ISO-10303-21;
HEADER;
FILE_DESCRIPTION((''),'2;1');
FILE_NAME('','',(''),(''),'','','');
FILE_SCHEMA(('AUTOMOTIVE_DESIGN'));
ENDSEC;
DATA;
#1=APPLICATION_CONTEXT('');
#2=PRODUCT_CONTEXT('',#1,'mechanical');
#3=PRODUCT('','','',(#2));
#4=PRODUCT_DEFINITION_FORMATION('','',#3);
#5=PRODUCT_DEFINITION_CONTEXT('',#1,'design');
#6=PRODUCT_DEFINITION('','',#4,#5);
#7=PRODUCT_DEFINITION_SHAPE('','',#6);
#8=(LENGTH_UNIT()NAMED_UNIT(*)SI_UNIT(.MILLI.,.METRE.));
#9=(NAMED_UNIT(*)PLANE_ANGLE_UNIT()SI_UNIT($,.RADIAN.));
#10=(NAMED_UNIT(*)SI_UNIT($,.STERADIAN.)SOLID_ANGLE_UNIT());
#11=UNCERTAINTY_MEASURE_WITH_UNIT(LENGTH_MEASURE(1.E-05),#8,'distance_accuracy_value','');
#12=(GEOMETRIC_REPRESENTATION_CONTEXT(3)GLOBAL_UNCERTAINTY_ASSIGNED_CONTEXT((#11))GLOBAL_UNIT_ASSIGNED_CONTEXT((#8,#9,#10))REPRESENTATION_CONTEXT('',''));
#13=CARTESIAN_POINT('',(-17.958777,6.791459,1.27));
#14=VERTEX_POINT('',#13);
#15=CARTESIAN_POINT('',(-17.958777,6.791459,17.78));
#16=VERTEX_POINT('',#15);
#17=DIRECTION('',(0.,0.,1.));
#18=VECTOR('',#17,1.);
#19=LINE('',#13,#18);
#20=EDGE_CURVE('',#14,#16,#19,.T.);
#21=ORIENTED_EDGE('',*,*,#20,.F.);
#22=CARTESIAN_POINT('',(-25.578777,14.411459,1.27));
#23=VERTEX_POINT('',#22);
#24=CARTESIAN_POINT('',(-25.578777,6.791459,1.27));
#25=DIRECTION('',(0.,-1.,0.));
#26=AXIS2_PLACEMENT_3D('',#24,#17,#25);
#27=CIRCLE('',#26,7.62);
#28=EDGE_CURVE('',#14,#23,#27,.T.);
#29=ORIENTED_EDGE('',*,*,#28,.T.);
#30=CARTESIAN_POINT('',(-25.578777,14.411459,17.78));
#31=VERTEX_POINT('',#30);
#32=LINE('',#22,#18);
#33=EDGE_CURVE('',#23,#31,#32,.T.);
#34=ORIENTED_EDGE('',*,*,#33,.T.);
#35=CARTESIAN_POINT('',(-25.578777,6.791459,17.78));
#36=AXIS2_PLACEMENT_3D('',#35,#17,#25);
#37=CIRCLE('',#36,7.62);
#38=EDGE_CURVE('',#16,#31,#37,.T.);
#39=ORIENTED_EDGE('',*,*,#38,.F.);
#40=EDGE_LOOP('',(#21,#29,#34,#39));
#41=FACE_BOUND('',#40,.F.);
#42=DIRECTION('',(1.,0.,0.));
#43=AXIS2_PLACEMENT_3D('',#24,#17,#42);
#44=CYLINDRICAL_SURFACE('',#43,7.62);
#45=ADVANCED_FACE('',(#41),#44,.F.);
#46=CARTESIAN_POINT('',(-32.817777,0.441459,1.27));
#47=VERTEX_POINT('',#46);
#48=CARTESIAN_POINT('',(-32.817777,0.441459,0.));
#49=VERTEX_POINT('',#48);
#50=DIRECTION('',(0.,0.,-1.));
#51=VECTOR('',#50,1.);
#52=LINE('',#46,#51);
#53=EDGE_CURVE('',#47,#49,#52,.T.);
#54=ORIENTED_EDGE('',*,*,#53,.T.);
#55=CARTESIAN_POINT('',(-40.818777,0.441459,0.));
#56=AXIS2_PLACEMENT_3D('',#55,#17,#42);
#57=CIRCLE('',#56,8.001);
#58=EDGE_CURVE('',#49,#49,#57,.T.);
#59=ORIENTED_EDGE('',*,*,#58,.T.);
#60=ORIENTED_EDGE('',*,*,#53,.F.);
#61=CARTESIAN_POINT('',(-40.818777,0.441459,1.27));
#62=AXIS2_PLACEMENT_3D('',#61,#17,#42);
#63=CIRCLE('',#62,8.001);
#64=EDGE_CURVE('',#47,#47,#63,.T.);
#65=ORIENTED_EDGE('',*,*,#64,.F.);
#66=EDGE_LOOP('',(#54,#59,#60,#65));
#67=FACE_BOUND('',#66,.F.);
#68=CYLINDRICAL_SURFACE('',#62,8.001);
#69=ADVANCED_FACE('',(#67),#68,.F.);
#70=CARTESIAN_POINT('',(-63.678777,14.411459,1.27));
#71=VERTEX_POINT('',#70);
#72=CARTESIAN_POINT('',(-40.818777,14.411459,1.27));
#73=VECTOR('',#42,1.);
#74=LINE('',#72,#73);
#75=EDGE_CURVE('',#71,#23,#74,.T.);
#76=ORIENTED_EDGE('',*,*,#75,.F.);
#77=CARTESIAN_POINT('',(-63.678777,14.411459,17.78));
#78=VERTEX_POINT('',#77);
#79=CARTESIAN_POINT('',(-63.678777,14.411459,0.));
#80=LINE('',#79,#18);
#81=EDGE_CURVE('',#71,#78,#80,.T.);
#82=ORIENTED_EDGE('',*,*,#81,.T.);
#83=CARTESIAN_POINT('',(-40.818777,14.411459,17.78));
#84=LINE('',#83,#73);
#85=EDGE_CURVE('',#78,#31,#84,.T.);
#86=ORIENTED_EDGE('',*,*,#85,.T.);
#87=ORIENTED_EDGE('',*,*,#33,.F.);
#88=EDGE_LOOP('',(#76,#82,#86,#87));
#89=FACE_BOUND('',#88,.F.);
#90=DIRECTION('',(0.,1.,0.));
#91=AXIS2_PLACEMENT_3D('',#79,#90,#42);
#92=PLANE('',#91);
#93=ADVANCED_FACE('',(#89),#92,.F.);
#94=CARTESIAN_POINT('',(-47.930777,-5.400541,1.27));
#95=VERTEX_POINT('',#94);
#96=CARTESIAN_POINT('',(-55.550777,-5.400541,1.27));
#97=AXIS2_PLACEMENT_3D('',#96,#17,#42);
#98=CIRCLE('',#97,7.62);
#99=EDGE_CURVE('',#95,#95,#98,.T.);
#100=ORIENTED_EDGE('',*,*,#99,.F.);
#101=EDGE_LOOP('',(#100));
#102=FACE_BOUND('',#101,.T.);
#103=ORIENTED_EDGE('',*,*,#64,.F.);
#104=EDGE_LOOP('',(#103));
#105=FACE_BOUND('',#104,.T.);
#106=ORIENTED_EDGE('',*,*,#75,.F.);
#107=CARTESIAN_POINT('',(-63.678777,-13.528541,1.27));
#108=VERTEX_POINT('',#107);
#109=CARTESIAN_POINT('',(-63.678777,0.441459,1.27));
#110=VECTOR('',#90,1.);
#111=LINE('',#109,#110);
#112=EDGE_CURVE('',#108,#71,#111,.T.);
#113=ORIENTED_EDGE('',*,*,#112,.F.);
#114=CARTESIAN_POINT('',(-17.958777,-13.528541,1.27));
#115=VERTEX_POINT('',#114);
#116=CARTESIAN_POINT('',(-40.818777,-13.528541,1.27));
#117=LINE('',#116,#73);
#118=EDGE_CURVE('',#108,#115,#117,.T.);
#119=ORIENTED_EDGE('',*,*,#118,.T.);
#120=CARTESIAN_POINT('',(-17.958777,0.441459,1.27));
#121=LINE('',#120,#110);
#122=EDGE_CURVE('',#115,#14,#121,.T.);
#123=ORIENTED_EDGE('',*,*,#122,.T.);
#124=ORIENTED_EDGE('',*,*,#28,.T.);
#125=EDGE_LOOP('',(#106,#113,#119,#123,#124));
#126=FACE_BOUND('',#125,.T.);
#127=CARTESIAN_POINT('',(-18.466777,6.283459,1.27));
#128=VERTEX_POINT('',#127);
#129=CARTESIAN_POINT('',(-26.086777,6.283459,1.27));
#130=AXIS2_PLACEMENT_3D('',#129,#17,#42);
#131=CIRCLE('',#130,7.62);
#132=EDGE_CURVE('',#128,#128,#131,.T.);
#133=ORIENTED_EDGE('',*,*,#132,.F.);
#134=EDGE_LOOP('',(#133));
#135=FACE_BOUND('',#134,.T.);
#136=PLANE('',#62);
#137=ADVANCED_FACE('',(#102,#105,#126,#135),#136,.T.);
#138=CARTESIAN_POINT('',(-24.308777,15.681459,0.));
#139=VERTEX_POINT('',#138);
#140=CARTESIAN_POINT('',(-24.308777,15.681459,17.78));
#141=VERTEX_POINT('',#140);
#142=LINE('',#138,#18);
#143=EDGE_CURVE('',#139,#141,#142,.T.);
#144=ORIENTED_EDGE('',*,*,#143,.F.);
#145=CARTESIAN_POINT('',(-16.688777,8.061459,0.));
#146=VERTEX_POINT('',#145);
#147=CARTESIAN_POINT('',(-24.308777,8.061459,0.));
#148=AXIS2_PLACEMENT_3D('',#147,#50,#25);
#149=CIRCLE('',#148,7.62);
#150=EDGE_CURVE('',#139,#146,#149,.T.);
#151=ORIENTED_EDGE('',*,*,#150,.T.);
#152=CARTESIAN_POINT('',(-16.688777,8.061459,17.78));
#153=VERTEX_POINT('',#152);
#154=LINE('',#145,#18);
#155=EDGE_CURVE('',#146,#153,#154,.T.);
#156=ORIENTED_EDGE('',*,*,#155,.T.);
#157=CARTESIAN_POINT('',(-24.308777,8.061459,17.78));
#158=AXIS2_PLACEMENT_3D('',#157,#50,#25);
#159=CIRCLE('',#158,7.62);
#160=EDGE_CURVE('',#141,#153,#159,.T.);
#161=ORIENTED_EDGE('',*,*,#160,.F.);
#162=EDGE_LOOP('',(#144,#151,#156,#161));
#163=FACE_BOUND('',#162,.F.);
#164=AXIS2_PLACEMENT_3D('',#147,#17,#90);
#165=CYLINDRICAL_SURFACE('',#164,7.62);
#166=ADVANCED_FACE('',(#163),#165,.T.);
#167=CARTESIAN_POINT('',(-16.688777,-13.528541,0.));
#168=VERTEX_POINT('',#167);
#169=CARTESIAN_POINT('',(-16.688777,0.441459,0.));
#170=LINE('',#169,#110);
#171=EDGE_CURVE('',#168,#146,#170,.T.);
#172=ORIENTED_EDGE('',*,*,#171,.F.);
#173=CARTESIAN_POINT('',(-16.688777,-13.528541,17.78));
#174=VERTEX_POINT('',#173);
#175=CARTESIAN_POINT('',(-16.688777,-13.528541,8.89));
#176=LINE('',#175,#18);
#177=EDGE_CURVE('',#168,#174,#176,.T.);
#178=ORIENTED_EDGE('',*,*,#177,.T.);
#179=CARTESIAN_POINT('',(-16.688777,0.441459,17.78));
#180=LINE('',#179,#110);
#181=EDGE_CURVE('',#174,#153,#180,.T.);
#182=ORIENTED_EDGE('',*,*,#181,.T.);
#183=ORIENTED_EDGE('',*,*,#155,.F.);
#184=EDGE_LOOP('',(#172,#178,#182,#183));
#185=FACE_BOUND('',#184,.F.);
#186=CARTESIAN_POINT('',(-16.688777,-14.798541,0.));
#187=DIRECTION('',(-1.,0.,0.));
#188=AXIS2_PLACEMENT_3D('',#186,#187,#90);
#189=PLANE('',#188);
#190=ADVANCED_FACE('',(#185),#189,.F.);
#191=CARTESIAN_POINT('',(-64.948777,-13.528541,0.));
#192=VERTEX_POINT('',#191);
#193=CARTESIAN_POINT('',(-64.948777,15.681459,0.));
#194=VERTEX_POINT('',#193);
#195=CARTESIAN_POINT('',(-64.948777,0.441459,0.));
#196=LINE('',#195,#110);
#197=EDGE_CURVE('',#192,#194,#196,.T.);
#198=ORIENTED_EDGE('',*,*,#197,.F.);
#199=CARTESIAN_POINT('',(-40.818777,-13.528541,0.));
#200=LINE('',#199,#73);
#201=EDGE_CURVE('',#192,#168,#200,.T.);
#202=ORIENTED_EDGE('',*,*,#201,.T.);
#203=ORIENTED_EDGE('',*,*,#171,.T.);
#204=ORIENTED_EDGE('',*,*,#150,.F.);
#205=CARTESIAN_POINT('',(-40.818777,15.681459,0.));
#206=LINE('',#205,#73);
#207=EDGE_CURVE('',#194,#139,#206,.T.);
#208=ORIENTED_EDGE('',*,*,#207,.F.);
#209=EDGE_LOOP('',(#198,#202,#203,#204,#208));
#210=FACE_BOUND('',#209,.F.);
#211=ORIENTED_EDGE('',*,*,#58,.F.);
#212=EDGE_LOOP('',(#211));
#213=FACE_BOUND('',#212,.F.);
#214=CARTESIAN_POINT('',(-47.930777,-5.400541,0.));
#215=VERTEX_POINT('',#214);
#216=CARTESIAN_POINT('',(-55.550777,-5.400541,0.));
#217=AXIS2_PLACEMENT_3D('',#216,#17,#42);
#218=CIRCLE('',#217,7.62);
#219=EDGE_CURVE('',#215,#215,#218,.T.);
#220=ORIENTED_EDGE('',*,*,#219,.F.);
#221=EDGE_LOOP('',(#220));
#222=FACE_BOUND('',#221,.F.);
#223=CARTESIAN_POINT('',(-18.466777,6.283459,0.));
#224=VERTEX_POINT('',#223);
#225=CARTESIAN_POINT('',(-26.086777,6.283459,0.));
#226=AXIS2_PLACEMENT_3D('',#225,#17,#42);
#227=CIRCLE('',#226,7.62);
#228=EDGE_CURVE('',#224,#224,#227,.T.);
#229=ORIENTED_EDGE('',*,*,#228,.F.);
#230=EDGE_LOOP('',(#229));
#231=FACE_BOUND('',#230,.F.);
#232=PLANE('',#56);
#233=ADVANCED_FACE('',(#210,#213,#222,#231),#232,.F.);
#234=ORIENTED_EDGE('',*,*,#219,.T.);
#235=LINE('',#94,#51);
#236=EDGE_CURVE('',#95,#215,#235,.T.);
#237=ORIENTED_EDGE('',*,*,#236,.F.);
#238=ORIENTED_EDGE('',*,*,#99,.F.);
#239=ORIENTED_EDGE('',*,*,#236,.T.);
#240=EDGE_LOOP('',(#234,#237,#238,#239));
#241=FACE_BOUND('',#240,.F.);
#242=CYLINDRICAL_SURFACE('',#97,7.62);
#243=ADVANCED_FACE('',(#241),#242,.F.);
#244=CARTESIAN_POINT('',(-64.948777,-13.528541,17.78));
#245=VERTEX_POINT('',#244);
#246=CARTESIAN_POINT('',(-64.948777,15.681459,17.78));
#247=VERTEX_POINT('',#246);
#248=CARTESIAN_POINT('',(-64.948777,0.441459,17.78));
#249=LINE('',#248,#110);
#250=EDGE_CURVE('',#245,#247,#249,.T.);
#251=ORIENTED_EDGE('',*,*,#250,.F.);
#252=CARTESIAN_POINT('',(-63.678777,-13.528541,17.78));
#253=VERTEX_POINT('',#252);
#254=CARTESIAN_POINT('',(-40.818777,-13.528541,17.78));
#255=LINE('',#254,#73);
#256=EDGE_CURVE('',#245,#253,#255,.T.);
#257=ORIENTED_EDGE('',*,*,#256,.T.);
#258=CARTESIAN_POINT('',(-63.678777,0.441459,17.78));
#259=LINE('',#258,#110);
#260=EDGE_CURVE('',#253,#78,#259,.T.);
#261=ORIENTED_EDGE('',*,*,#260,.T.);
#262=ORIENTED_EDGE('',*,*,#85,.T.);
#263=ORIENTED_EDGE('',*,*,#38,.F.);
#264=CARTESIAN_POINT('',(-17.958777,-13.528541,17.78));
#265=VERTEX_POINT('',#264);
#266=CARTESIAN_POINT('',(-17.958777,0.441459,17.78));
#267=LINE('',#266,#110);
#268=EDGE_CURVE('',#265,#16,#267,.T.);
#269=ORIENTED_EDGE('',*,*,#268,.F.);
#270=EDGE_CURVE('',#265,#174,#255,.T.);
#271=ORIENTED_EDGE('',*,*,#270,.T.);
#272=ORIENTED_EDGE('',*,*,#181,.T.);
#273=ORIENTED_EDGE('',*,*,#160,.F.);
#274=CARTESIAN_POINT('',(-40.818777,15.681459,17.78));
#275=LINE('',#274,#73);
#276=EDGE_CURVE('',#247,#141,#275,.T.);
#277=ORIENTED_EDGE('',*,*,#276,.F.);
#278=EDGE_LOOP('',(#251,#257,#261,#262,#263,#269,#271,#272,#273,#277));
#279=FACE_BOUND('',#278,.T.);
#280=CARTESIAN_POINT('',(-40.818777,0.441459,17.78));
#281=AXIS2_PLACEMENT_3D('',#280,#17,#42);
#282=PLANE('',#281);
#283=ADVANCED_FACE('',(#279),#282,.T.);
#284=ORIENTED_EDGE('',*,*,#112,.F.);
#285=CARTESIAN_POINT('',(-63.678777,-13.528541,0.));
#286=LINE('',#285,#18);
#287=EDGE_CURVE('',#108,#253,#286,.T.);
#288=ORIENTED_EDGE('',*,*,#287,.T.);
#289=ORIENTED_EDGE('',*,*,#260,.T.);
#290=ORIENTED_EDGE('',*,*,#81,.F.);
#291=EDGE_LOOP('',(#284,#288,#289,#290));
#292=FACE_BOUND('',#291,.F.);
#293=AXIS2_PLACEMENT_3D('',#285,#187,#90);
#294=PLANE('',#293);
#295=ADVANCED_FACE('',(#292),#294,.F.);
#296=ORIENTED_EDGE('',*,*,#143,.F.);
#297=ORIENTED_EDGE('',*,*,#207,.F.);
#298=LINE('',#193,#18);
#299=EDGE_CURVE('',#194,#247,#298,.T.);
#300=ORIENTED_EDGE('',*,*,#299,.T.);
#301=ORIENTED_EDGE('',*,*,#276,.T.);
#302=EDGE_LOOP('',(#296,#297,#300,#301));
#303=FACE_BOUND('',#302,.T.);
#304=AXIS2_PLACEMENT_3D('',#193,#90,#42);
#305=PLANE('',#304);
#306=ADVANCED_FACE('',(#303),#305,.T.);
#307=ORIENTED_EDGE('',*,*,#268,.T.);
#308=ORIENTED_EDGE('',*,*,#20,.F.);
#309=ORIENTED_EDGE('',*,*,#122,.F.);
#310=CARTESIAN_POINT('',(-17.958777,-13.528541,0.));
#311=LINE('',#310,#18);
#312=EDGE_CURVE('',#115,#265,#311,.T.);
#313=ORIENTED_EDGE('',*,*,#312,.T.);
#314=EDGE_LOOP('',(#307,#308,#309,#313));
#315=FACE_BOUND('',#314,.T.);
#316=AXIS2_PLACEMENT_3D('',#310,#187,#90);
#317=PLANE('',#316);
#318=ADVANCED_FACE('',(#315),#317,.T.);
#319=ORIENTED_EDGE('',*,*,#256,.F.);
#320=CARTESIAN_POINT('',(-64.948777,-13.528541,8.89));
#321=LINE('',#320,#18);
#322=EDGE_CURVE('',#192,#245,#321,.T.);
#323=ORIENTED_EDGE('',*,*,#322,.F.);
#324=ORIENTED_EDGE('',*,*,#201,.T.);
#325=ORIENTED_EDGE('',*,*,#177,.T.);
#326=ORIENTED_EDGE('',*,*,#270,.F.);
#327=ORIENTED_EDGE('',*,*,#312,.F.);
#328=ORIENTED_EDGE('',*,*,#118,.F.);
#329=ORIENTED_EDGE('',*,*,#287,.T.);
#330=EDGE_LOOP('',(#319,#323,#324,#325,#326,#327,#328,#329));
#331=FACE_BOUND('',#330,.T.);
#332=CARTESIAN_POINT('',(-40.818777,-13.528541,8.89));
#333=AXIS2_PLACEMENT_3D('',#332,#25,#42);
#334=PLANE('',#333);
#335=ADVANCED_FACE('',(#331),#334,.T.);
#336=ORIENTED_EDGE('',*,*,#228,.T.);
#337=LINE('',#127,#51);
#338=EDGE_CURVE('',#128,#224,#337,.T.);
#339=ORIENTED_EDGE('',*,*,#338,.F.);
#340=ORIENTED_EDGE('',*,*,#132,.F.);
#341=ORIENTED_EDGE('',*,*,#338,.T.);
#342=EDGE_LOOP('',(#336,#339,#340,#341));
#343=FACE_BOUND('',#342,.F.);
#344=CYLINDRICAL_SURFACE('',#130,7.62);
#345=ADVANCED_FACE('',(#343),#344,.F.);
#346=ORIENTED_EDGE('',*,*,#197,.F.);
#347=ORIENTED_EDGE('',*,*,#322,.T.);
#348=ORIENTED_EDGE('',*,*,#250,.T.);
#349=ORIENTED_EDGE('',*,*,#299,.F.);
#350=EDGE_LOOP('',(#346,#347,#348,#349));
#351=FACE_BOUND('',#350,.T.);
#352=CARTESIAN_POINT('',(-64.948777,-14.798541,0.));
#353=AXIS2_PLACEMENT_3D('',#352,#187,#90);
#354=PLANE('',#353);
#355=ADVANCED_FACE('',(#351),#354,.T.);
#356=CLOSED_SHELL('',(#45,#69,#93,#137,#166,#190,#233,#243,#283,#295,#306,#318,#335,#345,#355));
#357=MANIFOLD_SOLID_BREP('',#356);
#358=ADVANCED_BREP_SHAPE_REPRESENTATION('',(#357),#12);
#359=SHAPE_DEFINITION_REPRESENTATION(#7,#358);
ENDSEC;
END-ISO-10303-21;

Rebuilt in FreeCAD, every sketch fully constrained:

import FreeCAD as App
import Part
import Sketcher

V = App.Vector
Q = App.Units.Quantity


def edges_at(feature, points):
    """Names of the edges that pass closest to the given points."""
    edges = feature.Shape.Edges
    near = lambda p: min(range(len(edges)), key=lambda i: edges[i].distToShape(Part.Vertex(*p))[0])
    return sorted({f"Edge{near(p) + 1}" for p in points})


def add_polygon(sketch, points):
    """Adds a closed chain of lines whose ends are joined by coincident constraints."""
    first, n = sketch.GeometryCount, len(points)
    for a, b in zip(points, points[1:] + points[:1]):
        sketch.addGeometry(Part.LineSegment(App.Vector(*a, 0), App.Vector(*b, 0)), False)
    for i in range(n):
        sketch.addConstraint(Sketcher.Constraint("Coincident", first + i, 2, first + (i + 1) % n, 1))

doc = App.newDocument("Part")
body = doc.addObject("PartDesign::Body", "Body")

sketch1 = doc.addObject("Sketcher::SketchObject", "Sketch")
body.addObject(sketch1)
sketch1.AttachmentSupport = (doc.XY_Plane, [""])
sketch1.MapMode = "FlatFace"
add_polygon(sketch1, [(-64.948777, 15.681459), (-64.948777, -14.798541), (-16.688777, -14.798541), (-16.688777, 15.681459)])
add_polygon(sketch1, [(-17.958777, -13.528541), (-63.678777, -13.528541), (-63.678777, 14.411459), (-17.958777, 14.411459)])
sketch1.addConstraint([
    Sketcher.Constraint("Vertical", 0),
    Sketcher.Constraint("Horizontal", 1),
    Sketcher.Constraint("Vertical", 2),
    Sketcher.Constraint("Horizontal", 3),
    Sketcher.Constraint("Horizontal", 4),
    Sketcher.Constraint("Vertical", 5),
    Sketcher.Constraint("Horizontal", 6),
    Sketcher.Constraint("Vertical", 7),
    Sketcher.Constraint("DistanceX", 1, 1, 1, 2, Q("1.9 in")),
    Sketcher.Constraint("DistanceX", 4, 2, 4, 1, Q("1.8 in")),
    Sketcher.Constraint("DistanceY", 0, 2, 0, 1, Q("1.2 in")),
    Sketcher.Constraint("DistanceY", 5, 1, 5, 2, Q("1.1 in")),
    Sketcher.Constraint("DistanceX", 0, 2, 4, 2, Q("0.05 in")),
    Sketcher.Constraint("DistanceY", 0, 2, 4, 2, Q("0.05 in")),
    Sketcher.Constraint("DistanceY", 0, 2, -1, 1, 14.798541),
    Sketcher.Constraint("DistanceX", 0, 2, -1, 1, 64.948777),
])
pad1 = doc.addObject("PartDesign::Pad", "Pad")
body.addObject(pad1)
pad1.Profile = sketch1
pad1.Length = Q("0.7 in")

sketch2 = doc.addObject("Sketcher::SketchObject", "Sketch001")
body.addObject(sketch2)
sketch2.AttachmentSupport = (doc.XY_Plane, [""])
sketch2.MapMode = "FlatFace"
add_polygon(sketch2, [(-63.678777, 14.411459), (-63.678777, -13.528541), (-17.958777, -13.528541), (-17.958777, 14.411459)])
sketch2.addConstraint([
    Sketcher.Constraint("Vertical", 0),
    Sketcher.Constraint("Horizontal", 1),
    Sketcher.Constraint("Vertical", 2),
    Sketcher.Constraint("Horizontal", 3),
    Sketcher.Constraint("DistanceX", 1, 1, 1, 2, Q("1.8 in")),
    Sketcher.Constraint("DistanceY", 0, 2, 0, 1, Q("1.1 in")),
    Sketcher.Constraint("DistanceY", 0, 2, -1, 1, 13.528541),
    Sketcher.Constraint("DistanceX", 0, 2, -1, 1, 63.678777),
])
pad2 = doc.addObject("PartDesign::Pad", "Pad001")
body.addObject(pad2)
pad2.Profile = sketch2
pad2.Length = Q("0.05 in")
doc.recompute()

fillet = doc.addObject("PartDesign::Fillet", "Fillet")
body.addObject(fillet)
fillet.Base = (pad2, edges_at(pad2, [(-16.689, 15.681, 8.89), (-17.959, 14.411, 9.525)]))
fillet.Radius = Q("0.3 in")

sketch3 = doc.addObject("Sketcher::SketchObject", "Sketch002")
body.addObject(sketch3)
sketch3.AttachmentSupport = (doc.XZ_Plane, [""])
sketch3.MapMode = "FlatFace"
sketch3.AttachmentOffset = App.Placement(V(0, 0, 14.798541), App.Rotation())
add_polygon(sketch3, [(-64.948777, 17.78), (-64.948777, 0), (-16.688777, 0), (-16.688777, 17.78)])
sketch3.addConstraint([
    Sketcher.Constraint("Vertical", 0),
    Sketcher.Constraint("Horizontal", 1),
    Sketcher.Constraint("Vertical", 2),
    Sketcher.Constraint("Horizontal", 3),
    Sketcher.Constraint("PointOnObject", 0, 2, -1),
    Sketcher.Constraint("DistanceX", 1, 1, 1, 2, Q("1.9 in")),
    Sketcher.Constraint("DistanceY", 0, 2, 0, 1, Q("0.7 in")),
    Sketcher.Constraint("DistanceX", 0, 2, -1, 1, 64.948777),
])
pocket1 = doc.addObject("PartDesign::Pocket", "Pocket")
body.addObject(pocket1)
pocket1.Profile = sketch3
pocket1.Length = Q("0.05 in")

sketch4 = doc.addObject("Sketcher::SketchObject", "Sketch003")
body.addObject(sketch4)
sketch4.AttachmentSupport = (doc.XY_Plane, [""])
sketch4.MapMode = "FlatFace"
sketch4.AttachmentOffset = App.Placement(V(0, 0, 0.05 * 25.4), App.Rotation())
sketch4.addGeometry([
    Part.Circle(V(-40.818777, 0.441459, 0), V(0, 0, 1), 8.001),
    Part.Circle(V(-26.086777, 6.283459, 0), V(0, 0, 1), 7.62),
    Part.Circle(V(-55.550777, -5.400541, 0), V(0, 0, 1), 7.62),
], False)
sketch4.addConstraint([
    Sketcher.Constraint("Equal", 1, 2),
    Sketcher.Constraint("Diameter", 1, Q("0.6 in")),
    Sketcher.Constraint("Diameter", 0, Q("0.63 in")),
    Sketcher.Constraint("DistanceX", 0, 3, 1, 3, Q("0.58 in")),
    Sketcher.Constraint("DistanceY", 0, 3, 1, 3, Q("0.23 in")),
    Sketcher.Constraint("DistanceX", 2, 3, 0, 3, Q("0.58 in")),
    Sketcher.Constraint("DistanceY", 2, 3, 0, 3, Q("0.23 in")),
    Sketcher.Constraint("DistanceY", -1, 1, 0, 3, 0.441459),
    Sketcher.Constraint("DistanceX", 0, 3, -1, 1, 40.818777),
])
pocket2 = doc.addObject("PartDesign::Pocket", "Pocket001")
body.addObject(pocket2)
pocket2.Profile = sketch4
pocket2.Length = Q("0.479 in")

doc.recompute()
